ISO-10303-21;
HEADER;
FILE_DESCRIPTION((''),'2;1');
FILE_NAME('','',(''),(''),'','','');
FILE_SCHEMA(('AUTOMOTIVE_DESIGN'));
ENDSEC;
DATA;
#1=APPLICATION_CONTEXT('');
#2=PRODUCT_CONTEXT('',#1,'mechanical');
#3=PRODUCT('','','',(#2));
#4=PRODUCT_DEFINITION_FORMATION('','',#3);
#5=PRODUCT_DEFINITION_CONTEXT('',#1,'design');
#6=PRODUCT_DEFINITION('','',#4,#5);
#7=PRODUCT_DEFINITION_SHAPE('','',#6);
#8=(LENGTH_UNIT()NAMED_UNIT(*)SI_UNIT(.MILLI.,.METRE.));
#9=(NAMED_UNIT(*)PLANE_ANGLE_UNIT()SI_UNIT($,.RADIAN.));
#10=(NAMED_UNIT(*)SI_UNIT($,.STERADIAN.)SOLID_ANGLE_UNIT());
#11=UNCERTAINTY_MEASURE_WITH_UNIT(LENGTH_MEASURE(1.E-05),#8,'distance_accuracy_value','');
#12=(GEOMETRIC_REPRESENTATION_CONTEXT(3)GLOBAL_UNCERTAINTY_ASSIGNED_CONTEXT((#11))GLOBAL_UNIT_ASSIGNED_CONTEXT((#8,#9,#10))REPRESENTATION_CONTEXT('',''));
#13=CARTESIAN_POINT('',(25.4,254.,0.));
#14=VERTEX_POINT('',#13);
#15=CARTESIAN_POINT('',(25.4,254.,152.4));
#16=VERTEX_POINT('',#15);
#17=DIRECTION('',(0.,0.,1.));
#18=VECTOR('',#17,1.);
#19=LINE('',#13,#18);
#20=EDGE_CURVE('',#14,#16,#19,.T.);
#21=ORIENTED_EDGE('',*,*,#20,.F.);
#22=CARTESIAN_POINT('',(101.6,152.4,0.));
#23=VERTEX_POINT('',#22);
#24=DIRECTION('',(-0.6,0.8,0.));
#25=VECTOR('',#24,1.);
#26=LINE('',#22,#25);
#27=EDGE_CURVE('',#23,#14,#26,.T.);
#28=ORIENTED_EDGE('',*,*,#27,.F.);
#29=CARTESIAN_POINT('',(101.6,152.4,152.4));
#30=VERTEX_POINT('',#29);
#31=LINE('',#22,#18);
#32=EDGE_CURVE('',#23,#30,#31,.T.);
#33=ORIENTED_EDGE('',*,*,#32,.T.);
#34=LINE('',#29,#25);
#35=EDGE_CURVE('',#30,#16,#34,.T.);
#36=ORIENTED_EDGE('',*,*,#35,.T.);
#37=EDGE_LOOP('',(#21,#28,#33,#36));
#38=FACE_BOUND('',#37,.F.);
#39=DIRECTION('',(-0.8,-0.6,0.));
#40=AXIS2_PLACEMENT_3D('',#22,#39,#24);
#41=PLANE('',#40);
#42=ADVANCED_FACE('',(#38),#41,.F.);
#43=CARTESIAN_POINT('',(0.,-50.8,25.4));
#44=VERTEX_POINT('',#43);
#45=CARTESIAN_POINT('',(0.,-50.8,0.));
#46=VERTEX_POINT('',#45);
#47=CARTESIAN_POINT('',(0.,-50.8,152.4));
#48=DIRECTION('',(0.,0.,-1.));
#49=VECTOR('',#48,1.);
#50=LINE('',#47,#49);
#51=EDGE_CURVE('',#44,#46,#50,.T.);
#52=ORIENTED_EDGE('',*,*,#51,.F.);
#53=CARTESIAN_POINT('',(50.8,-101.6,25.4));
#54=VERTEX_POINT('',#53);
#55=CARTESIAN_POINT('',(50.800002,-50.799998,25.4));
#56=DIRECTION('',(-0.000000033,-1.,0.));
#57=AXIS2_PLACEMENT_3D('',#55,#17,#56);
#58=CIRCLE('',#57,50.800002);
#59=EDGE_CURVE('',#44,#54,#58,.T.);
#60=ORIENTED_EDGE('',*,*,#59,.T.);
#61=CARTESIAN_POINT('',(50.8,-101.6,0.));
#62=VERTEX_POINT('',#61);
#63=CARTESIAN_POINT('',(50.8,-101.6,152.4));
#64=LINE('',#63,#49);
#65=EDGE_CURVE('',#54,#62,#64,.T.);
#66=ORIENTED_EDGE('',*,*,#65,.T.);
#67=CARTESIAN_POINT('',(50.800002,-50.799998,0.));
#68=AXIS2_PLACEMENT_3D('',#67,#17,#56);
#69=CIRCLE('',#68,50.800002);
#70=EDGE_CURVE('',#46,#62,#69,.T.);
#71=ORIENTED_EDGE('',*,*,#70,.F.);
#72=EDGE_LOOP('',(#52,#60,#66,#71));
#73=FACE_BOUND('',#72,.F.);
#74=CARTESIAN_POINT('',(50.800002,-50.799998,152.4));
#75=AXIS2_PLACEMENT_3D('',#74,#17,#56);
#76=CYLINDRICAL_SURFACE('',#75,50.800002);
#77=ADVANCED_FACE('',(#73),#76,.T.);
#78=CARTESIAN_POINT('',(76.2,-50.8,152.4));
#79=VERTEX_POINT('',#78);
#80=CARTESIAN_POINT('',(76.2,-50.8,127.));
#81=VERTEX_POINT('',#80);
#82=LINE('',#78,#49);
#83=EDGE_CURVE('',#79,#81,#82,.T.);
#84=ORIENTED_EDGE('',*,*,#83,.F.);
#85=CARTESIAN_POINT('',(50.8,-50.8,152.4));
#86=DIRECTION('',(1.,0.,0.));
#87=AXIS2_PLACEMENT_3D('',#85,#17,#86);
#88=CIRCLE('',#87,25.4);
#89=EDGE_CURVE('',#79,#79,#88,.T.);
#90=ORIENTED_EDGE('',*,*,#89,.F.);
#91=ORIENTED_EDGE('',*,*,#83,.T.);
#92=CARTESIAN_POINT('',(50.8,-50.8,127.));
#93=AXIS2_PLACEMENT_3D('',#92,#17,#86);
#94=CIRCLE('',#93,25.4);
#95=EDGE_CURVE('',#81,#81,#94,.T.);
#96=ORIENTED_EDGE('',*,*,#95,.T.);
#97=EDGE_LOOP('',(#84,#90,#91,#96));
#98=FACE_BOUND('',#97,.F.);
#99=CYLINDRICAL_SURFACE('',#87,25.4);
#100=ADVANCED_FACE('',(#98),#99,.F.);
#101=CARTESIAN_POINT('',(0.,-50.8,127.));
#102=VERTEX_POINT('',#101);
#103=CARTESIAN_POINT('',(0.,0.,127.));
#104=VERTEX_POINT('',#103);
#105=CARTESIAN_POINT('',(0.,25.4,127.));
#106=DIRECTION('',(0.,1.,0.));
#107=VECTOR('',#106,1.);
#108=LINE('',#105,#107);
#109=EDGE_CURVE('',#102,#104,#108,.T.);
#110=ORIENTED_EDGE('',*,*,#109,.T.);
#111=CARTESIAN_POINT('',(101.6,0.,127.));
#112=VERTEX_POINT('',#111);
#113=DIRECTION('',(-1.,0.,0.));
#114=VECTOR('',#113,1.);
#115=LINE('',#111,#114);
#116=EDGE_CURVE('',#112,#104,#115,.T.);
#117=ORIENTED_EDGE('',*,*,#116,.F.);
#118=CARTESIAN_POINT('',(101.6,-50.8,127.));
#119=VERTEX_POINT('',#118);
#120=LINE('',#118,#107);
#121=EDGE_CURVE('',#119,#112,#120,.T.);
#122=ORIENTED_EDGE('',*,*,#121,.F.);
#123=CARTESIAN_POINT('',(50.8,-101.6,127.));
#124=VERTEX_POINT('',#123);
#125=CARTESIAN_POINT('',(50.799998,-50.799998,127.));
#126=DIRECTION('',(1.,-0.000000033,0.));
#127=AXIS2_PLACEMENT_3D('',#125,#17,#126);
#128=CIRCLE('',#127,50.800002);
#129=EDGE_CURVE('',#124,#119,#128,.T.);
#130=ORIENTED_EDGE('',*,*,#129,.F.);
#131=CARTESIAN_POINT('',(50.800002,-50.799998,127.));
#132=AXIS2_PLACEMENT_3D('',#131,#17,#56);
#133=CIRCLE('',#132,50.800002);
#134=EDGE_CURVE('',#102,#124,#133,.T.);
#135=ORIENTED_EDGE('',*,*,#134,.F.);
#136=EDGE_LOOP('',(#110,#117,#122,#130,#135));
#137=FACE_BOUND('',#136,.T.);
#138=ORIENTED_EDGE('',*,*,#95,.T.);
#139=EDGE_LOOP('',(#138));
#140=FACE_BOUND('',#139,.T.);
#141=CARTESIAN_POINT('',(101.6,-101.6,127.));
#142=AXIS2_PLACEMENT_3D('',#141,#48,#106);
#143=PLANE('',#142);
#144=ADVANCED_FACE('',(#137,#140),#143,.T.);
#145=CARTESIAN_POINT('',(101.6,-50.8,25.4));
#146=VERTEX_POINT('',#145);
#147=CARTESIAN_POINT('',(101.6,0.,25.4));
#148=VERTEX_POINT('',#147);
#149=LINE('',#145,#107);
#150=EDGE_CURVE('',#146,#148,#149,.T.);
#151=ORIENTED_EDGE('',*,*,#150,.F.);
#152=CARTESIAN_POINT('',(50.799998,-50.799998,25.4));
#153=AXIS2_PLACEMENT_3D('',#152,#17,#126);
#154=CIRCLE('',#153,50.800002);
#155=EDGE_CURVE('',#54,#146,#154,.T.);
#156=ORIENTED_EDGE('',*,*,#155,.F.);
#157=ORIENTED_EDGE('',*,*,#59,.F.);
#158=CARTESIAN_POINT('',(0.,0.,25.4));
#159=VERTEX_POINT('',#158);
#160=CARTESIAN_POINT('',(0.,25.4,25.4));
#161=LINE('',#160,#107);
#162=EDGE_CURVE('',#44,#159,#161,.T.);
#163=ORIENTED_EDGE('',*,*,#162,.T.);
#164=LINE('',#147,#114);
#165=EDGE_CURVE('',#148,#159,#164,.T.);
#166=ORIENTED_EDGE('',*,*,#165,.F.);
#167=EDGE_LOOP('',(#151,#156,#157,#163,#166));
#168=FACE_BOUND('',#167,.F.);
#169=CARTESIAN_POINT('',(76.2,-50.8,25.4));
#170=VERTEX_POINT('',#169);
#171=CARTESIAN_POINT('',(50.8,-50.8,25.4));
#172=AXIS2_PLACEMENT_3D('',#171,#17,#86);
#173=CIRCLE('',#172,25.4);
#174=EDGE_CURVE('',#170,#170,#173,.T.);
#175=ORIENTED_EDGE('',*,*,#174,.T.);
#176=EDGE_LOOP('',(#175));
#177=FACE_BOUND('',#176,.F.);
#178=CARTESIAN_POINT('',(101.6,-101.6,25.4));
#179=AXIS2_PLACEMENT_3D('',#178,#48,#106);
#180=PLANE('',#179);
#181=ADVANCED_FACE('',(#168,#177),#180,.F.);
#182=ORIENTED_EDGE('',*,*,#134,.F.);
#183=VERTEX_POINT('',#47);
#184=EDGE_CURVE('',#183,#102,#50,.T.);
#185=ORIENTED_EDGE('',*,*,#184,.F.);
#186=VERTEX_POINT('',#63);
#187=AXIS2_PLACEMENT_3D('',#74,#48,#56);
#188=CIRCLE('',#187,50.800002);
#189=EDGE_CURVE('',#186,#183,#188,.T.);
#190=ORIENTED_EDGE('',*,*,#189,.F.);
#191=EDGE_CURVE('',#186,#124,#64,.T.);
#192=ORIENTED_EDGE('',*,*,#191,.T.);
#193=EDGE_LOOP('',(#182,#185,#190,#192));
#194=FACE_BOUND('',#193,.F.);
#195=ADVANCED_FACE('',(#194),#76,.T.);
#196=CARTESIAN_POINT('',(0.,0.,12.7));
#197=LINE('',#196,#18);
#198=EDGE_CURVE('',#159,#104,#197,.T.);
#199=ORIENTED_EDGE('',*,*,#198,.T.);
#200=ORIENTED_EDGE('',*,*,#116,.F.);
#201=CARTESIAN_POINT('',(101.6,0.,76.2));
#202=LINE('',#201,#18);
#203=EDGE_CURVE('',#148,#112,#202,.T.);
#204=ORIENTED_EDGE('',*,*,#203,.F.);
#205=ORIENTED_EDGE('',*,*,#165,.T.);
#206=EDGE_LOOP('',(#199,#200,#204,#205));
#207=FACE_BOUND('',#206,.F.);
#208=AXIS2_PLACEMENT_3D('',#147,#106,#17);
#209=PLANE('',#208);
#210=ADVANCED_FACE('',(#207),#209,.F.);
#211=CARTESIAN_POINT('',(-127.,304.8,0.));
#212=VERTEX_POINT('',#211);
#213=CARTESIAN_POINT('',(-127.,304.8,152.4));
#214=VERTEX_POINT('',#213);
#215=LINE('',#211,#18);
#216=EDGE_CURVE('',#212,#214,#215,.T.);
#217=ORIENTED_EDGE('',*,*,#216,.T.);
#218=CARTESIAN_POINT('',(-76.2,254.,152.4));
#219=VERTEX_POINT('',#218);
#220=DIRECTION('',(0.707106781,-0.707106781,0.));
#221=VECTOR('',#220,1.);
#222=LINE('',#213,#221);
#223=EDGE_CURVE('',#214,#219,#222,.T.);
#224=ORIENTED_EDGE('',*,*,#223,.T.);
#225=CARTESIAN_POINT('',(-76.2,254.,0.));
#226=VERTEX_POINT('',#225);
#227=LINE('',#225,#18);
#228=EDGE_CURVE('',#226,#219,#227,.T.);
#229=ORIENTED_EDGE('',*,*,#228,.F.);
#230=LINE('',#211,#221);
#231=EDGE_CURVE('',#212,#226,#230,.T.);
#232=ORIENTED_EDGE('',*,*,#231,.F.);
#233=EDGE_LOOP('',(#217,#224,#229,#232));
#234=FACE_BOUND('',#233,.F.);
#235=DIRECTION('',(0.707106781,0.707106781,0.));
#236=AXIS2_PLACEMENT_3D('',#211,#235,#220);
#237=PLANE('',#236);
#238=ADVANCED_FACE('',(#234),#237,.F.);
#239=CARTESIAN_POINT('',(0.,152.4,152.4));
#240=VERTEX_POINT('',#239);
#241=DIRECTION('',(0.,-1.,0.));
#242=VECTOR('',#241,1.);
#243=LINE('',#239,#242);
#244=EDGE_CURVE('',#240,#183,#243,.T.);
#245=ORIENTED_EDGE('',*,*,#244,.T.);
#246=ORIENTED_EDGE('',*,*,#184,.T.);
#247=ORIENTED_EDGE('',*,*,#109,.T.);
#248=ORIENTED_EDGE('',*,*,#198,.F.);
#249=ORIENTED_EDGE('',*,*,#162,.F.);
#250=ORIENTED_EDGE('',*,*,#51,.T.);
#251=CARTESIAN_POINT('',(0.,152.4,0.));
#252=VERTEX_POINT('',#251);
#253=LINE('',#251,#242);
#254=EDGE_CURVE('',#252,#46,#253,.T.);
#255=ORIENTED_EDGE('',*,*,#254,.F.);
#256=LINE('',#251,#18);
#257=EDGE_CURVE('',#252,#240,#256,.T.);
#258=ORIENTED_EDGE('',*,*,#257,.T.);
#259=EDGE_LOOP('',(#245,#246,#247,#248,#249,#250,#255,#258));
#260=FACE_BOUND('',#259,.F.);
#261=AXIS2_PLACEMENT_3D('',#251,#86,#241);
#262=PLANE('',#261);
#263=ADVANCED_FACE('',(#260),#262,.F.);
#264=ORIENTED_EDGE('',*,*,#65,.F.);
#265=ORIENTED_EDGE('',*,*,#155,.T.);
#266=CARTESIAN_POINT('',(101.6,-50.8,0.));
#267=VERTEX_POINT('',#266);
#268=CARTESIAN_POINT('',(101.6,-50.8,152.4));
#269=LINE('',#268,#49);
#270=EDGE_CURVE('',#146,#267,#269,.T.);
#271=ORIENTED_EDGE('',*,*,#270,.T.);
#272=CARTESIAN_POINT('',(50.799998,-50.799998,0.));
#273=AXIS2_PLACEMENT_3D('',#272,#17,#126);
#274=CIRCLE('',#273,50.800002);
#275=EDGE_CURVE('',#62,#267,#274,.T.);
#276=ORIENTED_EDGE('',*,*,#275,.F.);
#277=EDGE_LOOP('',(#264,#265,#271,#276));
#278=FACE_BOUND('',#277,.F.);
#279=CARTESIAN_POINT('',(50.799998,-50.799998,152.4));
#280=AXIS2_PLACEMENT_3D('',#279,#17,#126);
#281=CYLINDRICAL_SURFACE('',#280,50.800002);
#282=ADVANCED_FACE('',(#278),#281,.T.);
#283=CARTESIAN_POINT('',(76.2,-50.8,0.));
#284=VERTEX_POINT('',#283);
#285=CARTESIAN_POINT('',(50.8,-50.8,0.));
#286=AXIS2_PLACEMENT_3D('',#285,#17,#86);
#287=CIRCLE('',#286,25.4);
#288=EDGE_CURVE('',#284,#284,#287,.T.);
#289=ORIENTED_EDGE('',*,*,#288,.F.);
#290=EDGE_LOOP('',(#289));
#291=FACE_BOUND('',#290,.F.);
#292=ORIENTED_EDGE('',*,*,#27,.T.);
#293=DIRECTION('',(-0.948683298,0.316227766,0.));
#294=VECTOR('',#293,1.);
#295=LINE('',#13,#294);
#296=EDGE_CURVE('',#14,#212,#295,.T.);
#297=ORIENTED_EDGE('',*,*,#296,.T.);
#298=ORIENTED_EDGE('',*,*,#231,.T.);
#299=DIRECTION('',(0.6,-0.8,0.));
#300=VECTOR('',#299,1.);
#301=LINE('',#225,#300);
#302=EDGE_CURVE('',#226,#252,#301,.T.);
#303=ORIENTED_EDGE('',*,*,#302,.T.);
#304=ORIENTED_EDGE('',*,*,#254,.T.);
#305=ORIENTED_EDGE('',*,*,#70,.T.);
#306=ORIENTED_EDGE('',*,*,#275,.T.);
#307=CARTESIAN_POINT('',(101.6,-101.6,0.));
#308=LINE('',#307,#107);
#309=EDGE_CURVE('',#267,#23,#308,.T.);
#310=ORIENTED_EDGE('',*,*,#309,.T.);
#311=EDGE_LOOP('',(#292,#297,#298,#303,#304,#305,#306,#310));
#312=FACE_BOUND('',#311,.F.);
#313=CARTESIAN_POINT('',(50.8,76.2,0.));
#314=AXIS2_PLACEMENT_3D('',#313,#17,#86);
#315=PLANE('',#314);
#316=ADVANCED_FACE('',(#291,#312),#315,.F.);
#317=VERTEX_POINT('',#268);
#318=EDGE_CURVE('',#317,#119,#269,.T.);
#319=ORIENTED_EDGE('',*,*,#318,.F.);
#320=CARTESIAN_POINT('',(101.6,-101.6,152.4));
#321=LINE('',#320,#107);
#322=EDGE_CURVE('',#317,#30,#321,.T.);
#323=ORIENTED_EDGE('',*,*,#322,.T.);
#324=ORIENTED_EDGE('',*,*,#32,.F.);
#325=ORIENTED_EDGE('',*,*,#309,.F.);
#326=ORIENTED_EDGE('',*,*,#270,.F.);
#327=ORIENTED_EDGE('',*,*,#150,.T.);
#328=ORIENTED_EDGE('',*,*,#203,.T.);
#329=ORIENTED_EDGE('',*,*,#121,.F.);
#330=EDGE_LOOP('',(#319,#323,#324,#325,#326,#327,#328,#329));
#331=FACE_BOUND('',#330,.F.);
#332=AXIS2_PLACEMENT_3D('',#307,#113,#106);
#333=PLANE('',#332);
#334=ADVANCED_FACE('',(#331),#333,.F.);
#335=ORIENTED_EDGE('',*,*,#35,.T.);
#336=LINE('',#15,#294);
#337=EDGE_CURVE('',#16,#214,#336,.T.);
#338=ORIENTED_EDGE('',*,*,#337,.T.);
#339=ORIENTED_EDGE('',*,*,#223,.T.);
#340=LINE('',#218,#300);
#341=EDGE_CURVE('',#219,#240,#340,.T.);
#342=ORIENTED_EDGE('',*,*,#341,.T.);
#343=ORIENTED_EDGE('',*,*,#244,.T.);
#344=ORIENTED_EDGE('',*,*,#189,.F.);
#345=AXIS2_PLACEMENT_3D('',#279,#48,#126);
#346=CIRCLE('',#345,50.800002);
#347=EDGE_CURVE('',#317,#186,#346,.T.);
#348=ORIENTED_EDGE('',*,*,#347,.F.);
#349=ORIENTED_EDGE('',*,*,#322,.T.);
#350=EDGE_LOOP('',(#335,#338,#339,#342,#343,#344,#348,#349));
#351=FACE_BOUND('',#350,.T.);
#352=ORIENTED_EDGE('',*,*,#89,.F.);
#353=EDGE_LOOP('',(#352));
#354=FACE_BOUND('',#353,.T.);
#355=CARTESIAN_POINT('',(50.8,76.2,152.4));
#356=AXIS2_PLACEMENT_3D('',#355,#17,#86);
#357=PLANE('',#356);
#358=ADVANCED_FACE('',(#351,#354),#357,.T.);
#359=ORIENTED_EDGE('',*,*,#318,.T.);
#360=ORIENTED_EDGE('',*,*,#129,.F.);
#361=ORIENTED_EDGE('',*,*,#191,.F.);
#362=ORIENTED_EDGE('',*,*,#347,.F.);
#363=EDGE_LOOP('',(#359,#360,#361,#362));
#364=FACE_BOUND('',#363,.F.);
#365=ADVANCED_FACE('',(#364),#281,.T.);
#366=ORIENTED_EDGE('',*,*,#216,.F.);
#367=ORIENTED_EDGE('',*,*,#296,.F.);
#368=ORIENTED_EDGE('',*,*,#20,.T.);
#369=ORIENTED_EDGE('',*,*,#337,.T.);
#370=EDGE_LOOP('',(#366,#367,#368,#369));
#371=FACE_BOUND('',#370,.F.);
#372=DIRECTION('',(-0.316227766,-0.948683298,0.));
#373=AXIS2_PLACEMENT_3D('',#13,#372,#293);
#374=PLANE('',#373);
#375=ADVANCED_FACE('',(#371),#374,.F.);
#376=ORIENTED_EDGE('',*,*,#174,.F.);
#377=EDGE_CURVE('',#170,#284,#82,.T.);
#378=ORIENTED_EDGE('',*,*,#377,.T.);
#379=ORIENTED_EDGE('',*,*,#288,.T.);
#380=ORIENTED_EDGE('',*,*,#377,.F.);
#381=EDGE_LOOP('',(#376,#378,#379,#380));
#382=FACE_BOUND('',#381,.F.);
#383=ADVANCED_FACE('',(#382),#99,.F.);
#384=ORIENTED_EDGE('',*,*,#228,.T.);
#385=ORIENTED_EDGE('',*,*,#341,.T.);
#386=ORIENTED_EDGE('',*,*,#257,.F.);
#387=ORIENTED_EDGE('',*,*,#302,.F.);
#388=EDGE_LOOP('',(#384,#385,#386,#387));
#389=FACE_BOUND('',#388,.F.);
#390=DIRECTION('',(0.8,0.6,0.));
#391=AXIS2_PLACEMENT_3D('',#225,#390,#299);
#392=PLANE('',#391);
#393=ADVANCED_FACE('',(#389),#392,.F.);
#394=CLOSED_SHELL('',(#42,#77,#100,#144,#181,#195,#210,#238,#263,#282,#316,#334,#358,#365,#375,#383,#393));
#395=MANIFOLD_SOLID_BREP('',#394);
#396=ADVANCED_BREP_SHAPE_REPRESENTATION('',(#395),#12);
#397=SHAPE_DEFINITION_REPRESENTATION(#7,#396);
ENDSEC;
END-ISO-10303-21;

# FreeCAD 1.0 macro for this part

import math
import FreeCAD as App
import Part
import Sketcher
Q = App.Units.Quantity


def add_polygon(sketch, points):
    """Adds a closed chain of lines whose ends are joined by coincident constraints."""
    first, n = sketch.GeometryCount, len(points)
    for a, b in zip(points, points[1:] + points[:1]):
        sketch.addGeometry(Part.LineSegment(App.Vector(*a, 0), App.Vector(*b, 0)), False)
    for i in range(n):
        sketch.addConstraint(Sketcher.Constraint("Coincident", first + i, 2, first + (i + 1) % n, 1))

doc = App.newDocument("Part")
body = doc.addObject("PartDesign::Body", "Body")

# Sketch on XY plane
sketch1 = body.newObject("Sketcher::SketchObject", "Sketch")
sketch1.AttachmentSupport = (doc.getObject("XY_Plane"), [""])
sketch1.MapMode = "FlatFace"
add_polygon(sketch1, [(0, 152.4), (0, -101.6), (101.6, -101.6), (101.6, 152.4), (25.4, 254), (-127, 304.8), (-76.2, 254)])  # lines 0-6
sketch1.addConstraint([
    Sketcher.Constraint("Vertical", 0),
    Sketcher.Constraint("Horizontal", 1),
    Sketcher.Constraint("Vertical", 2),
    Sketcher.Constraint("PointOnObject", 0, 2, -2),
    Sketcher.Constraint("Parallel", 3, 6),
    Sketcher.Constraint("Horizontal", 3, 2, 5, 2),
    Sketcher.Constraint("Horizontal", 2, 2, 6, 2),
    Sketcher.Constraint("DistanceX", 1, 1, 1, 2, Q("4 in")),
    Sketcher.Constraint("DistanceY", 0, 2, 0, 1, Q("10 in")),
    Sketcher.Constraint("Distance", 3, Q("5 in")),
    Sketcher.Constraint("DistanceY", 0, 2, -1, 1, Q("4 in")),
    Sketcher.Constraint("DistanceX", -1, 1, 3, 2, Q("1 in")),
    Sketcher.Constraint("DistanceX", 4, 2, -1, 1, Q("5 in")),
    Sketcher.Constraint("DistanceY", -1, 1, 4, 2, Q("12 in")),
])
pad1 = body.newObject("PartDesign::Pad", "Pad")
pad1.Profile = sketch1
pad1.Length = Q("6 in")

# Sketch on YZ plane
sketch2 = body.newObject("Sketcher::SketchObject", "Sketch001")
sketch2.AttachmentSupport = (doc.getObject("YZ_Plane"), [""])
sketch2.MapMode = "FlatFace"
sketch2.AttachmentOffset = App.Placement(App.Vector(0, 0, 4 * 25.4), App.Rotation())
add_polygon(sketch2, [(-101.6, 127), (-101.6, 25.4), (0, 25.4), (0, 127)])  # lines 0-3
sketch2.addConstraint([
    Sketcher.Constraint("Vertical", 0),
    Sketcher.Constraint("Horizontal", 1),
    Sketcher.Constraint("Vertical", 2),
    Sketcher.Constraint("Horizontal", 3),
    Sketcher.Constraint("PointOnObject", 1, 2, -2),
    Sketcher.Constraint("Equal", 3, 0),
    Sketcher.Constraint("DistanceX", 1, 1, 1, 2, Q("4 in")),
    Sketcher.Constraint("DistanceY", -1, 1, 0, 2, Q("1 in")),
])
pocket1 = body.newObject("PartDesign::Pocket", "Pocket")
pocket1.Profile = sketch2
pocket1.Type = "ThroughAll"

# Sketch on XY plane
sketch3 = body.newObject("Sketcher::SketchObject", "Sketch002")
sketch3.AttachmentSupport = (doc.getObject("XY_Plane"), [""])
sketch3.MapMode = "FlatFace"
sketch3.AttachmentOffset = App.Placement(App.Vector(0, 0, 6 * 25.4), App.Rotation())
sketch3.addGeometry([
    Part.Circle(App.Vector(50.8, -50.8, 0), App.Vector(0, 0, 1), 25.4),  # 0
    Part.ArcOfCircle(Part.Circle(App.Vector(50.799998, -50.799998, 0), App.Vector(0, 0, 1), 50.800002), math.radians(-89.999998), math.radians(-0.000002)),  # 1
    Part.LineSegment(App.Vector(50.8, -101.6, 0), App.Vector(101.6, -101.6, 0)),  # 2
    Part.LineSegment(App.Vector(101.6, -101.6, 0), App.Vector(101.6, -50.8, 0)),  # 3
    Part.ArcOfCircle(Part.Circle(App.Vector(50.800002, -50.799998, 0), App.Vector(0, 0, 1), 50.800002), math.radians(-179.999998), math.radians(-90.000002)),  # 4
    Part.LineSegment(App.Vector(0, -50.8, 0), App.Vector(0, -101.6, 0)),  # 5
    Part.LineSegment(App.Vector(0, -101.6, 0), App.Vector(50.8, -101.6, 0)),  # 6
], False)
sketch3.addConstraint([
    Sketcher.Constraint("Tangent", 1, 1, 2, 1),
    Sketcher.Constraint("Coincident", 2, 2, 3, 1),
    Sketcher.Constraint("Tangent", 3, 2, 1, 2),
    Sketcher.Constraint("Tangent", 4, 1, 5, 1),
    Sketcher.Constraint("Coincident", 5, 2, 6, 1),
    Sketcher.Constraint("Tangent", 6, 2, 4, 2),
    Sketcher.Constraint("Horizontal", 2),
    Sketcher.Constraint("Vertical", 3),
    Sketcher.Constraint("Vertical", 5),
    Sketcher.Constraint("Horizontal", 6),
    Sketcher.Constraint("Coincident", 1, 3, 0, 3),
    Sketcher.Constraint("Coincident", 4, 3, 0, 3),
    Sketcher.Constraint("Equal", 1, 4),
    Sketcher.Constraint("PointOnObject", 4, 1, -2),
    Sketcher.Constraint("Diameter", 0, Q("2 in")),
    Sketcher.Constraint("Radius", 1, Q("2.0000001 in")),
    Sketcher.Constraint("DistanceY", 0, 3, -1, 1, Q("2 in")),
])
pocket2 = body.newObject("PartDesign::Pocket", "Pocket001")
pocket2.Profile = sketch3
pocket2.Type = "ThroughAll"

doc.recompute()
